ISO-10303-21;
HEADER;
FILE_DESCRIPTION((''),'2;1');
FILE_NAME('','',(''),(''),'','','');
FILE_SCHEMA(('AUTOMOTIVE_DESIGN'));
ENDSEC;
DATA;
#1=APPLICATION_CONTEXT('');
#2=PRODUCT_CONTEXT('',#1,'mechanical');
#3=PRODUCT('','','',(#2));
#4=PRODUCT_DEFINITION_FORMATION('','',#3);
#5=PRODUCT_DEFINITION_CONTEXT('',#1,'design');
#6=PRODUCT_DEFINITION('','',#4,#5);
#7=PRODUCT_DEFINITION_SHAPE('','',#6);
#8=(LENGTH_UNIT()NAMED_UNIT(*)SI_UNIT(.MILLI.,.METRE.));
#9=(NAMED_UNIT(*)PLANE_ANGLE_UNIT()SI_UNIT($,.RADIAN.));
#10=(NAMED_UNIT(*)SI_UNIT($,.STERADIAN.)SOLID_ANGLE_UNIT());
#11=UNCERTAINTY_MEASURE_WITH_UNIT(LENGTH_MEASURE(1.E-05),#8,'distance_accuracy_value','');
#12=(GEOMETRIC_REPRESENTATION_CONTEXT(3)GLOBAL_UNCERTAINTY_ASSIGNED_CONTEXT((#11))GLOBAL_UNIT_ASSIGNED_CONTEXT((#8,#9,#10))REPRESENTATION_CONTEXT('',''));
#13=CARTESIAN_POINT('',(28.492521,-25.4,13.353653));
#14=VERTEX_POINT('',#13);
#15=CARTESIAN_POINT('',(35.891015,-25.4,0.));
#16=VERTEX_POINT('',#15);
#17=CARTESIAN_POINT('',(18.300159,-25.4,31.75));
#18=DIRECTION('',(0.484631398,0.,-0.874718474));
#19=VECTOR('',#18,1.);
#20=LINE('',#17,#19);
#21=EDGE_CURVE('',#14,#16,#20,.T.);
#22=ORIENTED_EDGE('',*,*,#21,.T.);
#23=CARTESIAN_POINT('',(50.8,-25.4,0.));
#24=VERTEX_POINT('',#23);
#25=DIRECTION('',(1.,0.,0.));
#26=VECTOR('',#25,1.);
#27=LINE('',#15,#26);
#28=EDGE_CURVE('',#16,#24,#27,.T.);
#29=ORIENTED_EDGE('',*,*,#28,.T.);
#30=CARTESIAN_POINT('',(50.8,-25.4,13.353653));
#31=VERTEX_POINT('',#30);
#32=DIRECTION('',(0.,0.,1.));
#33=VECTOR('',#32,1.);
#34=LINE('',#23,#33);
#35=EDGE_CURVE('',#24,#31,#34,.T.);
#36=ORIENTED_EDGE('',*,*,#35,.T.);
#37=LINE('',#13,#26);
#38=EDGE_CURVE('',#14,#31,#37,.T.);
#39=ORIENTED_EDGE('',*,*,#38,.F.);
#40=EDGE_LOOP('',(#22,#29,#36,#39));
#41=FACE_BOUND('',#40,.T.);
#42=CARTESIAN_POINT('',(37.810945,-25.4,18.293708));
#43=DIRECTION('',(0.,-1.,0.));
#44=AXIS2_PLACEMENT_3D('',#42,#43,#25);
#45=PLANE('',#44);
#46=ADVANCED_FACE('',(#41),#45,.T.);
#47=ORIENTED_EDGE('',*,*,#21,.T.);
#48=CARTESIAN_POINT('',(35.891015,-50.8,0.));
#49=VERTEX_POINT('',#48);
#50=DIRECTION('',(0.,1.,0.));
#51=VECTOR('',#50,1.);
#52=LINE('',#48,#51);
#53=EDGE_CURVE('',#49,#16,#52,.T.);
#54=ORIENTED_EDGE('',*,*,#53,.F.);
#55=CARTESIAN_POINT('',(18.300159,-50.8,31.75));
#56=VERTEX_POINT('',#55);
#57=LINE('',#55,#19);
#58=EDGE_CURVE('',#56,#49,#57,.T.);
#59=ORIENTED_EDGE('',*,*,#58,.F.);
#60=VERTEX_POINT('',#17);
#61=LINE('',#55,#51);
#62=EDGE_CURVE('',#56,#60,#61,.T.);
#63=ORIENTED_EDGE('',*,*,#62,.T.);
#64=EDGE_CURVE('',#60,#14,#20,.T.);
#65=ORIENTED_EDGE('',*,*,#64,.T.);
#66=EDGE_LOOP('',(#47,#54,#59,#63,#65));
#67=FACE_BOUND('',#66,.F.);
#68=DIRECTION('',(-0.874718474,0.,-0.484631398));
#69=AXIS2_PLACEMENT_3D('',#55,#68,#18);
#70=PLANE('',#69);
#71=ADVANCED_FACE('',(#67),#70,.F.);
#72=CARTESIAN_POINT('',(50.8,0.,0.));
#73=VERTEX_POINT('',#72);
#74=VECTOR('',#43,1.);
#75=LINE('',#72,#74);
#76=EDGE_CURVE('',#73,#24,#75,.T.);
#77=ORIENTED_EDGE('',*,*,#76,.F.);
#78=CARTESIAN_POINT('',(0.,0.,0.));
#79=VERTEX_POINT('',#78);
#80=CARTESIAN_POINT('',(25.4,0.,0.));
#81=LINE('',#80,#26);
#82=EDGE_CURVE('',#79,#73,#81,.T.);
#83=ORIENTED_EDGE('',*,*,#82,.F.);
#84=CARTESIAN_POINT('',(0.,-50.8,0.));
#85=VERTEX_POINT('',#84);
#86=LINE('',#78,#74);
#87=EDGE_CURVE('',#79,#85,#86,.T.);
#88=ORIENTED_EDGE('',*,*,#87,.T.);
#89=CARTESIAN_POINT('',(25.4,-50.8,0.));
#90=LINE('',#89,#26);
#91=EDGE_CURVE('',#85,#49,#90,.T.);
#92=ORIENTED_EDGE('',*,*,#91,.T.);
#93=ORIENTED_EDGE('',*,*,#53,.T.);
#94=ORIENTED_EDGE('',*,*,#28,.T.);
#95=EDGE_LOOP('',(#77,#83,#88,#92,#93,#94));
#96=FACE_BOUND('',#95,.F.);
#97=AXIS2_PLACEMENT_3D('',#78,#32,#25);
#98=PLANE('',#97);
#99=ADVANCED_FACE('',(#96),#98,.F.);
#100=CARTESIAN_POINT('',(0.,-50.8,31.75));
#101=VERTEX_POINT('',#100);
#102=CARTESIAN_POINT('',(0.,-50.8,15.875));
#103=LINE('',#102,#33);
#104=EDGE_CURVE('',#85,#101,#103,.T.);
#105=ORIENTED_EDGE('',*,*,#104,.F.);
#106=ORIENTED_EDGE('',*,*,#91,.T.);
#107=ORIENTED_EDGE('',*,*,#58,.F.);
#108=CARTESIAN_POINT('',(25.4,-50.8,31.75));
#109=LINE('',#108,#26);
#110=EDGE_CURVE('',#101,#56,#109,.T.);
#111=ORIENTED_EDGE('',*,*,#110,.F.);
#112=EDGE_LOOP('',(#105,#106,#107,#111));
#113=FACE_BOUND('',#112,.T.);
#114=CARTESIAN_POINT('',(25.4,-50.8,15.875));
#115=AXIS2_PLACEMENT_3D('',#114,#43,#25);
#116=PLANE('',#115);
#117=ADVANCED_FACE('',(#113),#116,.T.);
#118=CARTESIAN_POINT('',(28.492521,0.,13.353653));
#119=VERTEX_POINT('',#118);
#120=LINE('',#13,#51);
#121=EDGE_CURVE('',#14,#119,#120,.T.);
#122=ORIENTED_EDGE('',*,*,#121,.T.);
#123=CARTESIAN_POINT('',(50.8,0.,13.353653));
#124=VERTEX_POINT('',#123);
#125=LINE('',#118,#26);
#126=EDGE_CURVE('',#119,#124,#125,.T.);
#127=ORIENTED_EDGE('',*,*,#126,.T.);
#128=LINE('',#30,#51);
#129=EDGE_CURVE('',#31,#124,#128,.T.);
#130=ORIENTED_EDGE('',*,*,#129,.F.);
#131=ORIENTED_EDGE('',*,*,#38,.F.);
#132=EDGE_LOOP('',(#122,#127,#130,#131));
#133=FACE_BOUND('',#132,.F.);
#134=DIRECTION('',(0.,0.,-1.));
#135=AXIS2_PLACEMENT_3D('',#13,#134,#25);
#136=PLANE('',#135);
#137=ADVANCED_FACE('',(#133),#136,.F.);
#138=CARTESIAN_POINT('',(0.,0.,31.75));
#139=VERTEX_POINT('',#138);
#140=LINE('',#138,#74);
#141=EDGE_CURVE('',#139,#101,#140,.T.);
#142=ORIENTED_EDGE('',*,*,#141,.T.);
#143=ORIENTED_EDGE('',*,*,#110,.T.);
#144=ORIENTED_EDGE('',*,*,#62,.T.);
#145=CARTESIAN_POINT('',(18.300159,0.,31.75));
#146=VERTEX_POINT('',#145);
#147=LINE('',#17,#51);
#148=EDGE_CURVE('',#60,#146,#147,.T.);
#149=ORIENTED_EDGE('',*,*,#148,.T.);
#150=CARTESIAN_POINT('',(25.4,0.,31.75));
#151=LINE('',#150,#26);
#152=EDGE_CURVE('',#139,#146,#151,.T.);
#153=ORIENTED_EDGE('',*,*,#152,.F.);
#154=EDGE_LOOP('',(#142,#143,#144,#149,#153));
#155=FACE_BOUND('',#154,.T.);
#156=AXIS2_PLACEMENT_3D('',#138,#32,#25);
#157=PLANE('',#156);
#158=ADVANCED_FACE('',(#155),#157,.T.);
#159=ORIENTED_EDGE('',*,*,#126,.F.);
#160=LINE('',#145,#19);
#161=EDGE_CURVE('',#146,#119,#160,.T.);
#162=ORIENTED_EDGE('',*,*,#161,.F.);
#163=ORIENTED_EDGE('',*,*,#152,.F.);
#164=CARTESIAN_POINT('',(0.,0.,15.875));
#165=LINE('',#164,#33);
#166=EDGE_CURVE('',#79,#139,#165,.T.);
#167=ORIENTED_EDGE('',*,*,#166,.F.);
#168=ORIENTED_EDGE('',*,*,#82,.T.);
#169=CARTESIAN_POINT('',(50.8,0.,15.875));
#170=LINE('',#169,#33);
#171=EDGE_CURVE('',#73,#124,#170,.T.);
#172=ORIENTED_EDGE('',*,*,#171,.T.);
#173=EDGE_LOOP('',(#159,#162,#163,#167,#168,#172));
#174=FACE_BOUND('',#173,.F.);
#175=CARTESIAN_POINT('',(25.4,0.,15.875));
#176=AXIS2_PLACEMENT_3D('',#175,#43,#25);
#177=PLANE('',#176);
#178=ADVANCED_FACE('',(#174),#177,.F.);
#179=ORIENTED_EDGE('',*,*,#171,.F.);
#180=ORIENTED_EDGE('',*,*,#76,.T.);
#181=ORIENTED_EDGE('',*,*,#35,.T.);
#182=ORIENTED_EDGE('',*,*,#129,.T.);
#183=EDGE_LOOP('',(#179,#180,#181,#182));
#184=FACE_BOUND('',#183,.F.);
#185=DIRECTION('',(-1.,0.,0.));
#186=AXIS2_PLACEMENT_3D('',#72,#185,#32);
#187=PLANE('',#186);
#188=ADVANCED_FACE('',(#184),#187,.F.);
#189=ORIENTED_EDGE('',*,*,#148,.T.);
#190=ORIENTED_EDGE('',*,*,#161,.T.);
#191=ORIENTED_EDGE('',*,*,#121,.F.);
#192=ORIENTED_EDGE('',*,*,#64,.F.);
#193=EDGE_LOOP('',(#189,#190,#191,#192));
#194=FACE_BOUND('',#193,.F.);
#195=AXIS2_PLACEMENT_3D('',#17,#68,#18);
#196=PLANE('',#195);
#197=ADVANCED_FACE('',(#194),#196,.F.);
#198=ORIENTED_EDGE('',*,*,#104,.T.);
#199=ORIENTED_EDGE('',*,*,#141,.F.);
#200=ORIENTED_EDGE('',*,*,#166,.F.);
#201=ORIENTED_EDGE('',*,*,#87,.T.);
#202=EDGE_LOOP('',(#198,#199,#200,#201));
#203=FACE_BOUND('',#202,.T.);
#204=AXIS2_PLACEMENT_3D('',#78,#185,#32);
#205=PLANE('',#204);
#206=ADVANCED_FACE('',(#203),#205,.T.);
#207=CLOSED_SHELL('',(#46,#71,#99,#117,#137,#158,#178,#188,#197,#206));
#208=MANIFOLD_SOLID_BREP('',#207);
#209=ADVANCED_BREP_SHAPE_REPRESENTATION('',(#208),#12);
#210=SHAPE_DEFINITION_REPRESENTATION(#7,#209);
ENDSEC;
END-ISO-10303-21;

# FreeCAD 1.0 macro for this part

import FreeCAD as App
import Part
import Sketcher
from FreeCAD import Vector
Q = App.Units.Quantity

doc = App.newDocument("Part")
params = doc.addObject("Spreadsheet::Sheet", "Params")
for row, (alias, value) in enumerate([
    ("sketch1_width", "2 in"),
    ("sketch1_height", "1.25 in"),
    ("pad1_length", "2 in"),
    ("sketch2_height", "1.25 in"),
    ("pocket1_length", "1 in"),
    ("pocket2_length", "1 in"),
], start=1):
    params.set(f"A{row}", alias)
    params.set(f"B{row}", "=" + value)
    params.setAlias(f"B{row}", alias)

body = doc.addObject("PartDesign::Body", "Body")

sketch1 = body.newObject("Sketcher::SketchObject", "Sketch")
sketch1.AttachmentSupport = (doc.getObject("XZ_Plane"), [""])
sketch1.MapMode = "FlatFace"
sketch1.addGeometry([
    Part.LineSegment(Vector(0, 32, 0), Vector(0, 0, 0)),
    Part.LineSegment(Vector(0, 0, 0), Vector(51, 0, 0)),
    Part.LineSegment(Vector(51, 0, 0), Vector(51, 32, 0)),
    Part.LineSegment(Vector(51, 32, 0), Vector(0, 32, 0)),
], False)
sketch1.addConstraint([
    Sketcher.Constraint("Coincident", 0, 2, 1, 1),
    Sketcher.Constraint("Coincident", 1, 2, 2, 1),
    Sketcher.Constraint("Coincident", 2, 2, 3, 1),
    Sketcher.Constraint("Coincident", 3, 2, 0, 1),
    Sketcher.Constraint("Vertical", 0),
    Sketcher.Constraint("Horizontal", 1),
    Sketcher.Constraint("Vertical", 2),
    Sketcher.Constraint("Horizontal", 3),
    Sketcher.Constraint("Coincident", 0, 2, -1, 1),
    Sketcher.Constraint("DistanceX", 1, 1, 1, 2, Q("2 in")),
    Sketcher.Constraint("DistanceY", 0, 2, 0, 1, Q("1.25 in")),
])
sketch1.setExpression("Constraints[9]", "Params.sketch1_width")
sketch1.setExpression("Constraints[10]", "Params.sketch1_height")
pad1 = body.newObject("PartDesign::Pad", "Pad")
pad1.Profile = sketch1
pad1.setExpression("Length", "Params.pad1_length")

sketch2 = body.newObject("Sketcher::SketchObject", "Sketch001")
sketch2.AttachmentSupport = (doc.getObject("XZ_Plane"), [""])
sketch2.MapMode = "FlatFace"
sketch2.AttachmentOffset = App.Placement(Vector(0, 0, 2 * 25.4), App.Rotation())
sketch2.addGeometry([
    Part.LineSegment(Vector(51, 32, 0), Vector(18, 32, 0)),
    Part.LineSegment(Vector(18, 32, 0), Vector(36, 0, 0)),
    Part.LineSegment(Vector(36, 0, 0), Vector(51, 0, 0)),
    Part.LineSegment(Vector(51, 0, 0), Vector(51, 32, 0)),
], False)
sketch2.addConstraint([
    Sketcher.Constraint("Coincident", 0, 2, 1, 1),
    Sketcher.Constraint("Coincident", 1, 2, 2, 1),
    Sketcher.Constraint("Coincident", 2, 2, 3, 1),
    Sketcher.Constraint("Coincident", 3, 2, 0, 1),
    Sketcher.Constraint("Horizontal", 0),
    Sketcher.Constraint("Horizontal", 2),
    Sketcher.Constraint("Vertical", 3),
    Sketcher.Constraint("PointOnObject", 1, 2, -1),
    Sketcher.Constraint("DistanceX", -1, 1, 2, 2, Q("2 in")),
    Sketcher.Constraint("DistanceY", 3, 1, 3, 2, Q("1.25 in")),
    Sketcher.Constraint("DistanceX", 0, 2, 0, 1, Q("32.499841 mm")),
    Sketcher.Constraint("DistanceX", 2, 1, 2, 2, Q("14.908985 mm")),
])
sketch2.setExpression("Constraints[9]", "Params.sketch2_height")
pocket1 = body.newObject("PartDesign::Pocket", "Pocket")
pocket1.Profile = sketch2
pocket1.setExpression("Length", "Params.pocket1_length")

sketch3 = body.newObject("Sketcher::SketchObject", "Sketch002")
sketch3.AttachmentSupport = (doc.getObject("XZ_Plane"), [""])
sketch3.MapMode = "FlatFace"
sketch3.AttachmentOffset = App.Placement(Vector(0, 0, 1 * 25.4), App.Rotation())
sketch3.addGeometry([
    Part.LineSegment(Vector(18, 32, 0), Vector(28, 13, 0)),
    Part.LineSegment(Vector(28, 13, 0), Vector(51, 13, 0)),
    Part.LineSegment(Vector(51, 13, 0), Vector(51, 32, 0)),
    Part.LineSegment(Vector(51, 32, 0), Vector(18, 32, 0)),
], False)
sketch3.addConstraint([
    Sketcher.Constraint("Coincident", 0, 2, 1, 1),
    Sketcher.Constraint("Coincident", 1, 2, 2, 1),
    Sketcher.Constraint("Coincident", 2, 2, 3, 1),
    Sketcher.Constraint("Coincident", 3, 2, 0, 1),
    Sketcher.Constraint("Horizontal", 1),
    Sketcher.Constraint("Vertical", 2),
    Sketcher.Constraint("Horizontal", 3),
    Sketcher.Constraint("DistanceX", -1, 1, 1, 2, Q("2 in")),
    Sketcher.Constraint("DistanceY", -1, 1, 2, 2, Q("1.25 in")),
    Sketcher.Constraint("DistanceX", 1, 1, 1, 2, Q("22.307479 mm")),
    Sketcher.Constraint("DistanceX", 3, 2, 3, 1, Q("32.499841 mm")),
    Sketcher.Constraint("DistanceY", 2, 1, 2, 2, Q("18.396347 mm")),
])
pocket2 = body.newObject("PartDesign::Pocket", "Pocket001")
pocket2.Profile = sketch3
pocket2.setExpression("Length", "Params.pocket2_length")

doc.recompute()
